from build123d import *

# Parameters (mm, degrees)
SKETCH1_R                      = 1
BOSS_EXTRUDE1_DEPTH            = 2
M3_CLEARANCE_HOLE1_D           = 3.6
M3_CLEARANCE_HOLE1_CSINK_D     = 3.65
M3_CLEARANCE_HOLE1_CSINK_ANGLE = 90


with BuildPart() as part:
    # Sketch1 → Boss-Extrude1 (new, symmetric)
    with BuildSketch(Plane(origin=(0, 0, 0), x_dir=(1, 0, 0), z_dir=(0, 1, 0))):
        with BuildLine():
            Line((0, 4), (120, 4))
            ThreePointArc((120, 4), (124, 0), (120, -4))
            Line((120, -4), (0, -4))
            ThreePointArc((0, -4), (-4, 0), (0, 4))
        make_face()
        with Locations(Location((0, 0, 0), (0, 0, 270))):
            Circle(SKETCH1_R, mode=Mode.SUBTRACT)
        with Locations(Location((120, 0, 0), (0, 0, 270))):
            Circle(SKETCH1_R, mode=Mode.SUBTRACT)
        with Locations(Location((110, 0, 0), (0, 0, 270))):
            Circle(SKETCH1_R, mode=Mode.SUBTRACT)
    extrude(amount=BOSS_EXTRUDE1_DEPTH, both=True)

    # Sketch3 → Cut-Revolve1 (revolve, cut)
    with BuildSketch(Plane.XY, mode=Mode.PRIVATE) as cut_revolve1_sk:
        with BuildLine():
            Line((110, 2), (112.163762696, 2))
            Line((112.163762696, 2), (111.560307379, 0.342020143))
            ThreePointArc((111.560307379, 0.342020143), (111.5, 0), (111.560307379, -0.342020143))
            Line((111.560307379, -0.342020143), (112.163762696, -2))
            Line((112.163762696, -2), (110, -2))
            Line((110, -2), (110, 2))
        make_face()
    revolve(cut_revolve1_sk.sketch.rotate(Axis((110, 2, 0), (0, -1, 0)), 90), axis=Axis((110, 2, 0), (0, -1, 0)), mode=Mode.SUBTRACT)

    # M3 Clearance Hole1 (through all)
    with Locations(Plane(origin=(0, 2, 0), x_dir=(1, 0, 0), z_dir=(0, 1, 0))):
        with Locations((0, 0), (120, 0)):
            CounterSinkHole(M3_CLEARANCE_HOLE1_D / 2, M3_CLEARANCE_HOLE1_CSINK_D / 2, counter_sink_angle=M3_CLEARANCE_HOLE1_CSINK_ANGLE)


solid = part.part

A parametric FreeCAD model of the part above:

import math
import FreeCAD as App
import Part
import Sketcher
from FreeCAD import Vector
Q = App.Units.Quantity

doc = App.newDocument("Part")
params = doc.addObject("Spreadsheet::Sheet", "Params")
for row, (alias, value) in enumerate([
    ("sketch1_diameter", "2 mm"),
    ("sketch1_radius", "4 mm"),
    ("sketch1_width", "120 mm"),
    ("pad1_length", "4 mm"),
    ("sketch2_radius", "1 mm"),
    ("sketch2_height", "4 mm"),
    ("groove_angle", "360 deg"),
    ("sketch3_diameter", "3.6 mm"),
    ("hole_diameter", "3.6 mm"),
    ("hole_csink_diameter", "3.65 mm"),
], start=1):
    params.set(f"A{row}", alias)
    params.set(f"B{row}", "=" + value)
    params.setAlias(f"B{row}", alias)

body = doc.addObject("PartDesign::Body", "Body")

# Sketch on XZ plane
sketch1 = body.newObject("Sketcher::SketchObject", "Sketch")
sketch1.AttachmentSupport = (doc.getObject("XZ_Plane"), [""])
sketch1.MapMode = "FlatFace"
sketch1.addGeometry([
    Part.LineSegment(Vector(120, -4, 0), Vector(0, -4, 0)),  # 0
    Part.ArcOfCircle(Part.Circle(Vector(0, 0, 0), Vector(0, 0, 1), 4), math.radians(90), math.radians(270)),  # 1
    Part.LineSegment(Vector(0, 4, 0), Vector(120, 4, 0)),  # 2
    Part.ArcOfCircle(Part.Circle(Vector(120, 0, 0), Vector(0, 0, 1), 4), math.radians(-90), math.radians(90)),  # 3
    Part.Circle(Vector(120, 0, 0), Vector(0, 0, 1), 1),  # 4
    Part.Circle(Vector(110, 0, 0), Vector(0, 0, 1), 1),  # 5
    Part.Circle(Vector(0, 0, 0), Vector(0, 0, 1), 1),  # 6
], False)
sketch1.addConstraint([
    Sketcher.Constraint("Tangent", 0, 2, 1, 2),
    Sketcher.Constraint("Tangent", 1, 1, 2, 1),
    Sketcher.Constraint("Tangent", 2, 2, 3, 2),
    Sketcher.Constraint("Tangent", 3, 1, 0, 1),
    Sketcher.Constraint("Horizontal", 0),
    Sketcher.Constraint("Horizontal", 2),
    Sketcher.Constraint("Coincident", 1, 3, -1, 1),
    Sketcher.Constraint("Coincident", 6, 3, -1, 1),
    Sketcher.Constraint("Coincident", 4, 3, 3, 3),
    Sketcher.Constraint("Equal", 4, 5),
    Sketcher.Constraint("Equal", 5, 6),
    Sketcher.Constraint("PointOnObject", 5, 3, -1),
    Sketcher.Constraint("Diameter", 4, Q("2 mm")),
    Sketcher.Constraint("Radius", 1, Q("4 mm")),
    Sketcher.Constraint("DistanceX", 0, 2, 0, 1, Q("120 mm")),
    Sketcher.Constraint("DistanceX", -1, 1, 5, 3, Q("110 mm")),
])
sketch1.setExpression("Constraints[12]", "Params.sketch1_diameter")
sketch1.setExpression("Constraints[13]", "Params.sketch1_radius")
sketch1.setExpression("Constraints[14]", "Params.sketch1_width")
pad1 = body.newObject("PartDesign::Pad", "Pad")
pad1.Profile = sketch1
pad1.setExpression("Length", "Params.pad1_length")
pad1.Midplane = True

# Sketch on XY plane
sketch2 = body.newObject("Sketcher::SketchObject", "Sketch001")
sketch2.AttachmentSupport = (doc.getObject("XY_Plane"), [""])
sketch2.MapMode = "FlatFace"
sketch2.addGeometry([
    Part.LineSegment(Vector(112.2, 2, 0), Vector(110, 2, 0)),  # 0
    Part.LineSegment(Vector(110, 2, 0), Vector(110, -2, 0)),  # 1
    Part.LineSegment(Vector(110, -2, 0), Vector(112.2, -2, 0)),  # 2
    Part.LineSegment(Vector(112.2, -2, 0), Vector(111.6, -0.3, 0)),  # 3
    Part.ArcOfCircle(Part.Circle(Vector(112.5, 0, 0), Vector(0, 0, 1), 1), math.radians(160), math.radians(200)),  # 4
    Part.LineSegment(Vector(111.6, 0.3, 0), Vector(112.2, 2, 0)),  # 5
], False)
sketch2.addGeometry(Part.LineSegment(Vector(110, 2, 0), Vector(110, -2, 0)), True)  # axis
sketch2.addConstraint([
    Sketcher.Constraint("Coincident", 0, 2, 1, 1),
    Sketcher.Constraint("Coincident", 1, 2, 2, 1),
    Sketcher.Constraint("Coincident", 2, 2, 3, 1),
    Sketcher.Constraint("Tangent", 3, 2, 4, 2),
    Sketcher.Constraint("Tangent", 4, 1, 5, 1),
    Sketcher.Constraint("Coincident", 5, 2, 0, 1),
    Sketcher.Constraint("Horizontal", 0),
    Sketcher.Constraint("Vertical", 1),
    Sketcher.Constraint("Horizontal", 2),
    Sketcher.Constraint("Vertical", 6),
    Sketcher.Constraint("Coincident", 6, 1, 0, 2),
    Sketcher.Constraint("Symmetric", 3, 2, 4, 1, -1),
    Sketcher.Constraint("Horizontal", 2, 2, 6, 2),
    Sketcher.Constraint("Vertical", 2, 2, 5, 2),
    Sketcher.Constraint("Radius", 4, Q("1 mm")),
    Sketcher.Constraint("DistanceY", 1, 2, 1, 1, Q("4 mm")),
    Sketcher.Constraint("Angle", 3, Q("110 deg")),
    Sketcher.Constraint("DistanceX", -1, 1, 0, 2, Q("110 mm")),
    Sketcher.Constraint("DistanceX", -1, 1, 4, 3, Q("112.5 mm")),
])
sketch2.setExpression("Constraints[14]", "Params.sketch2_radius")
sketch2.setExpression("Constraints[15]", "Params.sketch2_height")
groove = body.newObject("PartDesign::Groove", "Groove")
groove.Profile = sketch2
groove.ReferenceAxis = (sketch2, ["Axis0"])
groove.setExpression("Angle", "Params.groove_angle")

# Sketch on XZ plane
sketch3 = body.newObject("Sketcher::SketchObject", "Sketch002")
sketch3.AttachmentSupport = (doc.getObject("XZ_Plane"), [""])
sketch3.MapMode = "FlatFace"
sketch3.AttachmentOffset = App.Placement(Vector(0, 0, -2), App.Rotation())
sketch3.addGeometry([
    Part.Circle(Vector(0, 0, 0), Vector(0, 0, 1), 1.8),
    Part.Circle(Vector(120, 0, 0), Vector(0, 0, 1), 1.8),
], False)
sketch3.addConstraint([
    Sketcher.Constraint("Coincident", 0, 3, -1, 1),
    Sketcher.Constraint("Equal", 0, 1),
    Sketcher.Constraint("PointOnObject", 1, 3, -1),
    Sketcher.Constraint("Diameter", 0, Q("3.6 mm")),
    Sketcher.Constraint("DistanceX", -1, 1, 1, 3, Q("120 mm")),
])
sketch3.setExpression("Constraints[3]", "Params.sketch3_diameter")
doc.recompute()
hole = body.newObject("PartDesign::Hole", "Hole")
hole.Profile = sketch3
hole.ThreadType = "None"
hole.setExpression("Diameter", "Params.hole_diameter")
hole.DepthType = "ThroughAll"
hole.HoleCutType = "Countersink"
hole.setExpression("HoleCutDiameter", "Params.hole_csink_diameter")
hole.HoleCutCountersinkAngle = 90
hole.Reversed = True

doc.recompute()
